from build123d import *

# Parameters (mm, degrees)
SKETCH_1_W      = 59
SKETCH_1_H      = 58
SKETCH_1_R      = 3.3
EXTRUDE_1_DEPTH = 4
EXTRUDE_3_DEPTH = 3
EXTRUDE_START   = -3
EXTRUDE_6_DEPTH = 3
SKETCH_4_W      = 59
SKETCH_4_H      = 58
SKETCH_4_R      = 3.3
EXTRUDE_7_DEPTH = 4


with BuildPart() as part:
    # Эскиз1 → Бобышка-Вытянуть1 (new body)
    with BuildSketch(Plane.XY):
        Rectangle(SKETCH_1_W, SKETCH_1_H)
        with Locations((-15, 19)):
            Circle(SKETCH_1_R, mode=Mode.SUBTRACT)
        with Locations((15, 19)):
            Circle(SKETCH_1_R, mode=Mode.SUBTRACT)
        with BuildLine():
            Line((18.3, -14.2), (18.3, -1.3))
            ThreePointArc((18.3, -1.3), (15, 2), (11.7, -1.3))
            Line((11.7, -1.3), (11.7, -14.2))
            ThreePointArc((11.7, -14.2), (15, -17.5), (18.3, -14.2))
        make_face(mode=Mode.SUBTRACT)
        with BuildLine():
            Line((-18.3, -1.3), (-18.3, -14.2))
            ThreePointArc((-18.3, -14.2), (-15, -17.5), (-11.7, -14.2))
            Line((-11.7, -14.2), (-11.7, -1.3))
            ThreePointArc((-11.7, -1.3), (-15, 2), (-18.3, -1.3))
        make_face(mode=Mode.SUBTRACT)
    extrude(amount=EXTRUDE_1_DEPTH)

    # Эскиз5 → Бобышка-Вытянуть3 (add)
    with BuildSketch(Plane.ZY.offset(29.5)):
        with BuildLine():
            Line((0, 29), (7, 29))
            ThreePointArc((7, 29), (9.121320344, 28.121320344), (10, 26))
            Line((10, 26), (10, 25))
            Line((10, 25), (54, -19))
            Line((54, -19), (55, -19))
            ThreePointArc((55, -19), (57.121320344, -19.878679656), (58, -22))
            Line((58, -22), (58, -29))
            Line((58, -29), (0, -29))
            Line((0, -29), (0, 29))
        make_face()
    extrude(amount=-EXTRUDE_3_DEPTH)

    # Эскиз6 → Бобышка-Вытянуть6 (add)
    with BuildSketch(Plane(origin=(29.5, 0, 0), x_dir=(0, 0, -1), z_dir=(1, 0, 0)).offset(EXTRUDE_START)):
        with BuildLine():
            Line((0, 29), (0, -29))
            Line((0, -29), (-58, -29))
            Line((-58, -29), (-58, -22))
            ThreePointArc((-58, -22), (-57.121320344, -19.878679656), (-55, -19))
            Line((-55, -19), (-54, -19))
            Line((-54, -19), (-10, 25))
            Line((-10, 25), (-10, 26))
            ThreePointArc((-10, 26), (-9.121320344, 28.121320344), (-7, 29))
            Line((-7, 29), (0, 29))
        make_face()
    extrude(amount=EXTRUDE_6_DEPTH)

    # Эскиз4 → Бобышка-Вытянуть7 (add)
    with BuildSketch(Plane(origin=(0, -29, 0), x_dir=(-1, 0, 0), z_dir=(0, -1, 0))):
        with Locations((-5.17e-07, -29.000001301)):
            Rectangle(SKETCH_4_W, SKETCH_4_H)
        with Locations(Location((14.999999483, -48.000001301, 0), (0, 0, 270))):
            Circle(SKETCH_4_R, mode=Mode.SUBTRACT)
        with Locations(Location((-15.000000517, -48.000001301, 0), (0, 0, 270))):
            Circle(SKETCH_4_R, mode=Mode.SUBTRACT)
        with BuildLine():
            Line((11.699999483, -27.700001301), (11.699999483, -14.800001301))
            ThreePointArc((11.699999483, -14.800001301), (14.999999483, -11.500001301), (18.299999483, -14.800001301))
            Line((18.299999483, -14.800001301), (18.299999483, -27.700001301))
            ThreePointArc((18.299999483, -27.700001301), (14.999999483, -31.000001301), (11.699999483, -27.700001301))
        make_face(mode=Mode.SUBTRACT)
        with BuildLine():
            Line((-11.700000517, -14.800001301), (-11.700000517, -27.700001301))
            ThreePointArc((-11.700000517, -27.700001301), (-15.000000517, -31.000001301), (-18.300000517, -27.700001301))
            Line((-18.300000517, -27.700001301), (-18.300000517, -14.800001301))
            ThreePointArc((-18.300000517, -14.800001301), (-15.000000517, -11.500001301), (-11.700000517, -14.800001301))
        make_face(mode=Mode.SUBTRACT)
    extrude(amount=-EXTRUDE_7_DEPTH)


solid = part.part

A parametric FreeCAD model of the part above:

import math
import FreeCAD as App
import Part
import Sketcher
Q = App.Units.Quantity


def add_polygon(sketch, points):
    """Adds a closed chain of lines whose ends are joined by coincident constraints."""
    first, n = sketch.GeometryCount, len(points)
    for a, b in zip(points, points[1:] + points[:1]):
        sketch.addGeometry(Part.LineSegment(App.Vector(*a, 0), App.Vector(*b, 0)), False)
    for i in range(n):
        sketch.addConstraint(Sketcher.Constraint("Coincident", first + i, 2, first + (i + 1) % n, 1))

doc = App.newDocument("Part")
body = doc.addObject("PartDesign::Body", "Body")

# Sketch on XY plane
sketch1 = body.newObject("Sketcher::SketchObject", "Sketch")
sketch1.AttachmentSupport = (doc.getObject("XY_Plane"), [""])
sketch1.MapMode = "FlatFace"
add_polygon(sketch1, [(-29.5, 29), (-29.5, -29), (29.5, -29), (29.5, 29)])  # lines 0-3
sketch1.addGeometry(Part.LineSegment(App.Vector(-18.3, -14.2, 0), App.Vector(-18.3, -1.3, 0)), False)  # 4
sketch1.addGeometry(Part.ArcOfCircle(Part.Circle(App.Vector(-15, -1.3, 0), App.Vector(0, 0, 1), 3.3), math.radians(0), math.radians(180)), False)  # 5
sketch1.addGeometry(Part.LineSegment(App.Vector(-11.7, -1.3, 0), App.Vector(-11.7, -14.2, 0)), False)  # 6
sketch1.addGeometry(Part.ArcOfCircle(Part.Circle(App.Vector(-15, -14.2, 0), App.Vector(0, 0, 1), 3.3), math.radians(180), math.radians(360)), False)  # 7
sketch1.addGeometry(Part.LineSegment(App.Vector(18.3, -1.3, 0), App.Vector(18.3, -14.2, 0)), False)  # 8
sketch1.addGeometry(Part.ArcOfCircle(Part.Circle(App.Vector(15, -14.2, 0), App.Vector(0, 0, 1), 3.3), math.radians(180), math.radians(360)), False)  # 9
sketch1.addGeometry(Part.LineSegment(App.Vector(11.7, -14.2, 0), App.Vector(11.7, -1.3, 0)), False)  # 10
sketch1.addGeometry(Part.ArcOfCircle(Part.Circle(App.Vector(15, -1.3, 0), App.Vector(0, 0, 1), 3.3), math.radians(0), math.radians(180)), False)  # 11
sketch1.addGeometry(Part.Circle(App.Vector(-15, 19, 0), App.Vector(0, 0, 1), 3.3), False)  # 12
sketch1.addGeometry(Part.Circle(App.Vector(15, 19, 0), App.Vector(0, 0, 1), 3.3), False)  # 13
sketch1.addConstraint([
    Sketcher.Constraint("Tangent", 4, 2, 5, 2),
    Sketcher.Constraint("Tangent", 5, 1, 6, 1),
    Sketcher.Constraint("Tangent", 6, 2, 7, 2),
    Sketcher.Constraint("Tangent", 7, 1, 4, 1),
    Sketcher.Constraint("Tangent", 8, 2, 9, 2),
    Sketcher.Constraint("Tangent", 9, 1, 10, 1),
    Sketcher.Constraint("Tangent", 10, 2, 11, 2),
    Sketcher.Constraint("Tangent", 11, 1, 8, 1),
    Sketcher.Constraint("Vertical", 0),
    Sketcher.Constraint("Horizontal", 1),
    Sketcher.Constraint("Vertical", 2),
    Sketcher.Constraint("Horizontal", 3),
    Sketcher.Constraint("Vertical", 4),
    Sketcher.Constraint("Vertical", 6),
    Sketcher.Constraint("Vertical", 8),
    Sketcher.Constraint("Vertical", 10),
    Sketcher.Constraint("Equal", 7, 9),
    Sketcher.Constraint("Equal", 11, 12),
    Sketcher.Constraint("Equal", 12, 13),
    Sketcher.Constraint("Symmetric", 0, 2, 2, 2, -1, 1),
    Sketcher.Constraint("Symmetric", 7, 3, 9, 3, -2),
    Sketcher.Constraint("Symmetric", 12, 3, 13, 3, -2),
    Sketcher.Constraint("Horizontal", 5, 3, 11, 3),
    Sketcher.Constraint("Vertical", 7, 3, 12, 3),
    Sketcher.Constraint("Diameter", 12, Q("6.6 mm")),
    Sketcher.Constraint("DistanceX", 1, 1, 1, 2, Q("59 mm")),
    Sketcher.Constraint("DistanceY", 0, 2, 0, 1, Q("58 mm")),
    Sketcher.Constraint("DistanceY", 4, 1, 4, 2, Q("12.9 mm")),
    Sketcher.Constraint("DistanceX", 5, 3, -1, 1, Q("15 mm")),
    Sketcher.Constraint("DistanceY", -1, 1, 12, 3, Q("19 mm")),
    Sketcher.Constraint("DistanceY", 5, 3, -1, 1, Q("1.3 mm")),
])
pad1 = body.newObject("PartDesign::Pad", "Pad")
pad1.Profile = sketch1
pad1.Length = 4

# Sketch on YZ plane
sketch2 = body.newObject("Sketcher::SketchObject", "Sketch001")
sketch2.AttachmentSupport = (doc.getObject("YZ_Plane"), [""])
sketch2.MapMode = "FlatFace"
sketch2.AttachmentOffset = App.Placement(App.Vector(0, 0, -29.5), App.Rotation())
sketch2.addGeometry([
    Part.LineSegment(App.Vector(29, 7, 0), App.Vector(29, 0, 0)),  # 0
    Part.LineSegment(App.Vector(29, 0, 0), App.Vector(-29, 0, 0)),  # 1
    Part.LineSegment(App.Vector(-29, 0, 0), App.Vector(-29, 58, 0)),  # 2
    Part.LineSegment(App.Vector(-29, 58, 0), App.Vector(-22, 58, 0)),  # 3
    Part.ArcOfCircle(Part.Circle(App.Vector(-22, 55, 0), App.Vector(0, 0, 1), 3), math.radians(0), math.radians(90)),  # 4
    Part.LineSegment(App.Vector(-19, 55, 0), App.Vector(-19, 54, 0)),  # 5
    Part.LineSegment(App.Vector(-19, 54, 0), App.Vector(25, 10, 0)),  # 6
    Part.LineSegment(App.Vector(25, 10, 0), App.Vector(26, 10, 0)),  # 7
    Part.ArcOfCircle(Part.Circle(App.Vector(26, 7, 0), App.Vector(0, 0, 1), 3), math.radians(0), math.radians(90)),  # 8
], False)
sketch2.addConstraint([
    Sketcher.Constraint("Coincident", 0, 2, 1, 1),
    Sketcher.Constraint("Coincident", 1, 2, 2, 1),
    Sketcher.Constraint("Coincident", 2, 2, 3, 1),
    Sketcher.Constraint("Tangent", 3, 2, 4, 2),
    Sketcher.Constraint("Tangent", 4, 1, 5, 1),
    Sketcher.Constraint("Coincident", 5, 2, 6, 1),
    Sketcher.Constraint("Coincident", 6, 2, 7, 1),
    Sketcher.Constraint("Tangent", 7, 2, 8, 2),
    Sketcher.Constraint("Tangent", 8, 1, 0, 1),
    Sketcher.Constraint("Vertical", 0),
    Sketcher.Constraint("Horizontal", 1),
    Sketcher.Constraint("Vertical", 2),
    Sketcher.Constraint("Horizontal", 3),
    Sketcher.Constraint("Vertical", 5),
    Sketcher.Constraint("Horizontal", 7),
    Sketcher.Constraint("Equal", 4, 8),
    Sketcher.Constraint("Symmetric", 0, 2, 1, 2, -1, 1),
    Sketcher.Constraint("Equal", 3, 0),
    Sketcher.Constraint("Equal", 1, 2),
    Sketcher.Constraint("Equal", 7, 5),
    Sketcher.Constraint("Radius", 4, Q("3 mm")),
    Sketcher.Constraint("DistanceX", 1, 2, 1, 1, Q("58 mm")),
    Sketcher.Constraint("DistanceX", 3, 1, 3, 2, Q("7 mm")),
    Sketcher.Constraint("DistanceX", 7, 1, 7, 2, Q("1 mm")),
])
pad2 = body.newObject("PartDesign::Pad", "Pad001")
pad2.Profile = sketch2
pad2.Length = 3

# Sketch on YZ plane
sketch3 = body.newObject("Sketcher::SketchObject", "Sketch002")
sketch3.AttachmentSupport = (doc.getObject("YZ_Plane"), [""])
sketch3.MapMode = "FlatFace"
sketch3.AttachmentOffset = App.Placement(App.Vector(0, 0, 26.5), App.Rotation())
sketch3.addGeometry([
    Part.LineSegment(App.Vector(-29, 0, 0), App.Vector(29, 0, 0)),  # 0
    Part.LineSegment(App.Vector(29, 0, 0), App.Vector(29, 7, 0)),  # 1
    Part.ArcOfCircle(Part.Circle(App.Vector(26, 7, 0), App.Vector(0, 0, 1), 3), math.radians(0), math.radians(90)),  # 2
    Part.LineSegment(App.Vector(26, 10, 0), App.Vector(25, 10, 0)),  # 3
    Part.LineSegment(App.Vector(25, 10, 0), App.Vector(-19, 54, 0)),  # 4
    Part.LineSegment(App.Vector(-19, 54, 0), App.Vector(-19, 55, 0)),  # 5
    Part.ArcOfCircle(Part.Circle(App.Vector(-22, 55, 0), App.Vector(0, 0, 1), 3), math.radians(0), math.radians(90)),  # 6
    Part.LineSegment(App.Vector(-22, 58, 0), App.Vector(-29, 58, 0)),  # 7
    Part.LineSegment(App.Vector(-29, 58, 0), App.Vector(-29, 0, 0)),  # 8
], False)
sketch3.addConstraint([
    Sketcher.Constraint("Coincident", 0, 2, 1, 1),
    Sketcher.Constraint("Tangent", 1, 2, 2, 1),
    Sketcher.Constraint("Tangent", 2, 2, 3, 1),
    Sketcher.Constraint("Coincident", 3, 2, 4, 1),
    Sketcher.Constraint("Coincident", 4, 2, 5, 1),
    Sketcher.Constraint("Tangent", 5, 2, 6, 1),
    Sketcher.Constraint("Tangent", 6, 2, 7, 1),
    Sketcher.Constraint("Coincident", 7, 2, 8, 1),
    Sketcher.Constraint("Coincident", 8, 2, 0, 1),
    Sketcher.Constraint("Horizontal", 0),
    Sketcher.Constraint("Vertical", 1),
    Sketcher.Constraint("Horizontal", 3),
    Sketcher.Constraint("Vertical", 5),
    Sketcher.Constraint("Horizontal", 7),
    Sketcher.Constraint("Vertical", 8),
    Sketcher.Constraint("Equal", 2, 6),
    Sketcher.Constraint("Symmetric", 0, 2, 8, 2, -1, 1),
    Sketcher.Constraint("Equal", 7, 1),
    Sketcher.Constraint("Equal", 3, 5),
    Sketcher.Constraint("Equal", 0, 8),
    Sketcher.Constraint("Radius", 2, Q("3 mm")),
    Sketcher.Constraint("DistanceX", 0, 1, 0, 2, Q("58 mm")),
    Sketcher.Constraint("DistanceX", 3, 2, 3, 1, Q("1 mm")),
    Sketcher.Constraint("DistanceX", 7, 2, 7, 1, Q("7 mm")),
])
pad3 = body.newObject("PartDesign::Pad", "Pad002")
pad3.Profile = sketch3
pad3.Length = 3

# Sketch on XZ plane
sketch4 = body.newObject("Sketcher::SketchObject", "Sketch003")
sketch4.AttachmentSupport = (doc.getObject("XZ_Plane"), [""])
sketch4.MapMode = "FlatFace"
sketch4.AttachmentOffset = App.Placement(App.Vector(0, 0, 29), App.Rotation())
add_polygon(sketch4, [(29.5, 0), (29.5, 58), (-29.5, 58), (-29.5, 0)])  # lines 0-3
sketch4.addGeometry(Part.Circle(App.Vector(15, 48, 0), App.Vector(0, 0, 1), 3.3), False)  # 4
sketch4.addGeometry(Part.Circle(App.Vector(-15, 48, 0), App.Vector(0, 0, 1), 3.3), False)  # 5
sketch4.addGeometry(Part.ArcOfCircle(Part.Circle(App.Vector(15, 14.8, 0), App.Vector(0, 0, 1), 3.3), math.radians(180), math.radians(360)), False)  # 6
sketch4.addGeometry(Part.LineSegment(App.Vector(11.7, 14.8, 0), App.Vector(11.7, 27.7, 0)), False)  # 7
sketch4.addGeometry(Part.ArcOfCircle(Part.Circle(App.Vector(15, 27.7, 0), App.Vector(0, 0, 1), 3.3), math.radians(0), math.radians(180)), False)  # 8
sketch4.addGeometry(Part.LineSegment(App.Vector(18.3, 27.7, 0), App.Vector(18.3, 14.8, 0)), False)  # 9
sketch4.addGeometry(Part.ArcOfCircle(Part.Circle(App.Vector(-15, 27.7, 0), App.Vector(0, 0, 1), 3.3), math.radians(0), math.radians(180)), False)  # 10
sketch4.addGeometry(Part.LineSegment(App.Vector(-11.7, 27.7, 0), App.Vector(-11.7, 14.8, 0)), False)  # 11
sketch4.addGeometry(Part.ArcOfCircle(Part.Circle(App.Vector(-15, 14.8, 0), App.Vector(0, 0, 1), 3.3), math.radians(180), math.radians(360)), False)  # 12
sketch4.addGeometry(Part.LineSegment(App.Vector(-18.3, 14.8, 0), App.Vector(-18.3, 27.7, 0)), False)  # 13
sketch4.addConstraint([
    Sketcher.Constraint("Tangent", 6, 1, 7, 1),
    Sketcher.Constraint("Tangent", 7, 2, 8, 2),
    Sketcher.Constraint("Tangent", 8, 1, 9, 1),
    Sketcher.Constraint("Tangent", 9, 2, 6, 2),
    Sketcher.Constraint("Tangent", 10, 1, 11, 1),
    Sketcher.Constraint("Tangent", 11, 2, 12, 2),
    Sketcher.Constraint("Tangent", 12, 1, 13, 1),
    Sketcher.Constraint("Tangent", 13, 2, 10, 2),
    Sketcher.Constraint("Vertical", 0),
    Sketcher.Constraint("Horizontal", 1),
    Sketcher.Constraint("Vertical", 2),
    Sketcher.Constraint("Horizontal", 3),
    Sketcher.Constraint("Vertical", 7),
    Sketcher.Constraint("Vertical", 9),
    Sketcher.Constraint("Vertical", 11),
    Sketcher.Constraint("Vertical", 13),
    Sketcher.Constraint("Equal", 4, 5),
    Sketcher.Constraint("Equal", 5, 6),
    Sketcher.Constraint("Equal", 8, 10),
    Sketcher.Constraint("Symmetric", 2, 2, 3, 2, -1, 1),
    Sketcher.Constraint("Symmetric", 4, 3, 5, 3, -2),
    Sketcher.Constraint("Symmetric", 8, 3, 10, 3, -2),
    Sketcher.Constraint("Horizontal", 6, 3, 12, 3),
    Sketcher.Constraint("Vertical", 4, 3, 6, 3),
    Sketcher.Constraint("Diameter", 4, Q("6.6 mm")),
    Sketcher.Constraint("DistanceX", 1, 2, 1, 1, Q("59 mm")),
    Sketcher.Constraint("DistanceY", 0, 1, 0, 2, Q("58 mm")),
    Sketcher.Constraint("DistanceY", 7, 1, 7, 2, Q("12.9 mm")),
    Sketcher.Constraint("DistanceX", -1, 1, 4, 3, Q("15.000001 mm")),
    Sketcher.Constraint("DistanceY", -1, 1, 4, 3, Q("48.000001 mm")),
    Sketcher.Constraint("DistanceY", -1, 1, 6, 3, Q("14.800001 mm")),
])
pad4 = body.newObject("PartDesign::Pad", "Pad003")
pad4.Profile = sketch4
pad4.Length = 4
pad4.Reversed = True

doc.recompute()
